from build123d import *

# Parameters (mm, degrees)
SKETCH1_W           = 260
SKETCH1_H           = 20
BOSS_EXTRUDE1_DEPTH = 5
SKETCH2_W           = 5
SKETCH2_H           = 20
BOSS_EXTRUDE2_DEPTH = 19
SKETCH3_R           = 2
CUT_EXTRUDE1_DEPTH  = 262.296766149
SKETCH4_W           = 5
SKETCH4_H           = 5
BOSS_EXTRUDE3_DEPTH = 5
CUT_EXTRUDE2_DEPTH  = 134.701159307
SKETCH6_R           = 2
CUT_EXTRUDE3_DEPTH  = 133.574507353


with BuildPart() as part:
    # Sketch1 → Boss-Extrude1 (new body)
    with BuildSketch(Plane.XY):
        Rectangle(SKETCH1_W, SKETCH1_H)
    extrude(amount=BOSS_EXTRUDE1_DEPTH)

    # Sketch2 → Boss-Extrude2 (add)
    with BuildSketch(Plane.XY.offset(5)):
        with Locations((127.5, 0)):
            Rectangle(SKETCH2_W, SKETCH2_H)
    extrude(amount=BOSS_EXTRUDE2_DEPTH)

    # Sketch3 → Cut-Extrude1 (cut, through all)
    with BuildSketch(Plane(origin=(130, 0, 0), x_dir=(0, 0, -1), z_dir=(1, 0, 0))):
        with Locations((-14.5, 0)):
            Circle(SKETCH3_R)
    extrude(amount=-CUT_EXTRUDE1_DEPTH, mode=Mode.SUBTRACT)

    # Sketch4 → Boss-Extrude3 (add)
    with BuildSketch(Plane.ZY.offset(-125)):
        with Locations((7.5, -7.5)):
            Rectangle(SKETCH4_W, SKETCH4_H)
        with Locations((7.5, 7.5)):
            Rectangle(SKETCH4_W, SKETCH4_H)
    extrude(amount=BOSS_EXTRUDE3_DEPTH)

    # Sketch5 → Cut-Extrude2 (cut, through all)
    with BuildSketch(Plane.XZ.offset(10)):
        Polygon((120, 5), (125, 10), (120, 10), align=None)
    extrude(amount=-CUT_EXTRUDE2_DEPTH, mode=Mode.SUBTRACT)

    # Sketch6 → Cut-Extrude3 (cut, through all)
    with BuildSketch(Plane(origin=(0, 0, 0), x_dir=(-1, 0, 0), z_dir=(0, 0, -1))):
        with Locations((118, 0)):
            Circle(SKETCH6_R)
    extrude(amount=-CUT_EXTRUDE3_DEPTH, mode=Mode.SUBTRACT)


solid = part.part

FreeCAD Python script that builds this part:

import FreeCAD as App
import Part
import Sketcher
from FreeCAD import Vector


def add_polygon(sketch, points):
    """Adds a closed chain of lines whose ends are joined by coincident constraints."""
    first, n = sketch.GeometryCount, len(points)
    for a, b in zip(points, points[1:] + points[:1]):
        sketch.addGeometry(Part.LineSegment(App.Vector(*a, 0), App.Vector(*b, 0)), False)
    for i in range(n):
        sketch.addConstraint(Sketcher.Constraint("Coincident", first + i, 2, first + (i + 1) % n, 1))

doc = App.newDocument("Part")
body = doc.addObject("PartDesign::Body", "Body")

# Sketch on XY plane
sketch1 = doc.addObject("Sketcher::SketchObject", "Sketch")
body.addObject(sketch1)
sketch1.AttachmentSupport = (doc.XY_Plane, [""])
sketch1.MapMode = "FlatFace"
add_polygon(sketch1, [(-130, 10), (-130, -10), (130, -10), (130, 10)])  # lines 0-3
sketch1.addConstraint(Sketcher.Constraint("Vertical", 0))
sketch1.addConstraint(Sketcher.Constraint("Horizontal", 1))
sketch1.addConstraint(Sketcher.Constraint("Vertical", 2))
sketch1.addConstraint(Sketcher.Constraint("Horizontal", 3))
sketch1.addConstraint(Sketcher.Constraint("Symmetric", 0, 2, 2, 2, -1, 1))
sketch1.addConstraint(Sketcher.Constraint("DistanceX", 1, 1, 1, 2, 260.0))
sketch1.addConstraint(Sketcher.Constraint("DistanceY", 0, 2, 0, 1, 20.0))
pad1 = doc.addObject("PartDesign::Pad", "Pad")
body.addObject(pad1)
pad1.Profile = sketch1
pad1.Length = 5

# Sketch on XY plane
sketch2 = doc.addObject("Sketcher::SketchObject", "Sketch001")
body.addObject(sketch2)
sketch2.AttachmentSupport = (doc.XY_Plane, [""])
sketch2.MapMode = "FlatFace"
sketch2.AttachmentOffset = App.Placement(Vector(0, 0, 5), App.Rotation())
add_polygon(sketch2, [(125, 10), (125, -10), (130, -10), (130, 10)])  # lines 0-3
sketch2.addConstraint(Sketcher.Constraint("Vertical", 0))
sketch2.addConstraint(Sketcher.Constraint("Horizontal", 1))
sketch2.addConstraint(Sketcher.Constraint("Vertical", 2))
sketch2.addConstraint(Sketcher.Constraint("Horizontal", 3))
sketch2.addConstraint(Sketcher.Constraint("DistanceX", 1, 1, 1, 2, 5.0))
sketch2.addConstraint(Sketcher.Constraint("DistanceY", 0, 2, 0, 1, 20.0))
sketch2.addConstraint(Sketcher.Constraint("DistanceX", -1, 1, 0, 2, 125.0))
sketch2.addConstraint(Sketcher.Constraint("DistanceY", 0, 2, -1, 1, 10.0))
pad2 = doc.addObject("PartDesign::Pad", "Pad001")
body.addObject(pad2)
pad2.Profile = sketch2
pad2.Length = 19

# Sketch on YZ plane
sketch3 = doc.addObject("Sketcher::SketchObject", "Sketch002")
body.addObject(sketch3)
sketch3.AttachmentSupport = (doc.YZ_Plane, [""])
sketch3.MapMode = "FlatFace"
sketch3.AttachmentOffset = App.Placement(Vector(0, 0, 130), App.Rotation())
sketch3.addGeometry(Part.Circle(Vector(0, 14.5, 0), Vector(0, 0, 1), 2), False)
sketch3.addConstraint(Sketcher.Constraint("PointOnObject", 0, 3, -2))
sketch3.addConstraint(Sketcher.Constraint("Diameter", 0, 4.0))
sketch3.addConstraint(Sketcher.Constraint("DistanceY", -1, 1, 0, 3, 14.5))
pocket1 = doc.addObject("PartDesign::Pocket", "Pocket")
body.addObject(pocket1)
pocket1.Profile = sketch3
pocket1.Type = "ThroughAll"

# Sketch on YZ plane
sketch4 = doc.addObject("Sketcher::SketchObject", "Sketch003")
body.addObject(sketch4)
sketch4.AttachmentSupport = (doc.YZ_Plane, [""])
sketch4.MapMode = "FlatFace"
sketch4.AttachmentOffset = App.Placement(Vector(0, 0, 125), App.Rotation())
add_polygon(sketch4, [(-5, 5), (-10, 5), (-10, 10), (-5, 10)])  # lines 0-3
add_polygon(sketch4, [(10, 5), (5, 5), (5, 10), (10, 10)])  # lines 4-7
sketch4.addConstraint(Sketcher.Constraint("Horizontal", 0))
sketch4.addConstraint(Sketcher.Constraint("Vertical", 1))
sketch4.addConstraint(Sketcher.Constraint("Horizontal", 2))
sketch4.addConstraint(Sketcher.Constraint("Vertical", 3))
sketch4.addConstraint(Sketcher.Constraint("Horizontal", 4))
sketch4.addConstraint(Sketcher.Constraint("Vertical", 5))
sketch4.addConstraint(Sketcher.Constraint("Horizontal", 6))
sketch4.addConstraint(Sketcher.Constraint("Vertical", 7))
sketch4.addConstraint(Sketcher.Constraint("Symmetric", 3, 2, 4, 2, -2))
sketch4.addConstraint(Sketcher.Constraint("Symmetric", 1, 2, 6, 2, -2))
sketch4.addConstraint(Sketcher.Constraint("Equal", 6, 1))
sketch4.addConstraint(Sketcher.Constraint("DistanceX", 0, 2, 0, 1, 5.0))
sketch4.addConstraint(Sketcher.Constraint("DistanceX", 0, 2, -1, 1, 10.0))
sketch4.addConstraint(Sketcher.Constraint("DistanceY", -1, 1, 0, 2, 5.0))
pad3 = doc.addObject("PartDesign::Pad", "Pad002")
body.addObject(pad3)
pad3.Profile = sketch4
pad3.Length = 5
pad3.Reversed = True

# Sketch on XZ plane
sketch5 = doc.addObject("Sketcher::SketchObject", "Sketch004")
body.addObject(sketch5)
sketch5.AttachmentSupport = (doc.XZ_Plane, [""])
sketch5.MapMode = "FlatFace"
sketch5.AttachmentOffset = App.Placement(Vector(0, 0, 10), App.Rotation())
add_polygon(sketch5, [(120, 5), (125, 10), (120, 10)])  # lines 0-2
sketch5.addConstraint(Sketcher.Constraint("Horizontal", 1))
sketch5.addConstraint(Sketcher.Constraint("Vertical", 2))
sketch5.addConstraint(Sketcher.Constraint("Equal", 1, 2))
sketch5.addConstraint(Sketcher.Constraint("DistanceX", 1, 2, 1, 1, 5.0))
sketch5.addConstraint(Sketcher.Constraint("DistanceX", -1, 1, 0, 2, 125.0))
sketch5.addConstraint(Sketcher.Constraint("DistanceY", -1, 1, 0, 2, 10.0))
pocket2 = doc.addObject("PartDesign::Pocket", "Pocket001")
body.addObject(pocket2)
pocket2.Profile = sketch5
pocket2.Type = "ThroughAll"

# Sketch on XY plane
sketch6 = doc.addObject("Sketcher::SketchObject", "Sketch005")
body.addObject(sketch6)
sketch6.AttachmentSupport = (doc.XY_Plane, [""])
sketch6.MapMode = "FlatFace"
sketch6.addGeometry(Part.Circle(Vector(-118, 0, 0), Vector(0, 0, 1), 2), False)
sketch6.addConstraint(Sketcher.Constraint("PointOnObject", 0, 3, -1))
sketch6.addConstraint(Sketcher.Constraint("Diameter", 0, 4.0))
sketch6.addConstraint(Sketcher.Constraint("DistanceX", 0, 3, -1, 1, 118.0))
pocket3 = doc.addObject("PartDesign::Pocket", "Pocket002")
body.addObject(pocket3)
pocket3.Profile = sketch6
pocket3.Type = "ThroughAll"
pocket3.Reversed = True

doc.recompute()
